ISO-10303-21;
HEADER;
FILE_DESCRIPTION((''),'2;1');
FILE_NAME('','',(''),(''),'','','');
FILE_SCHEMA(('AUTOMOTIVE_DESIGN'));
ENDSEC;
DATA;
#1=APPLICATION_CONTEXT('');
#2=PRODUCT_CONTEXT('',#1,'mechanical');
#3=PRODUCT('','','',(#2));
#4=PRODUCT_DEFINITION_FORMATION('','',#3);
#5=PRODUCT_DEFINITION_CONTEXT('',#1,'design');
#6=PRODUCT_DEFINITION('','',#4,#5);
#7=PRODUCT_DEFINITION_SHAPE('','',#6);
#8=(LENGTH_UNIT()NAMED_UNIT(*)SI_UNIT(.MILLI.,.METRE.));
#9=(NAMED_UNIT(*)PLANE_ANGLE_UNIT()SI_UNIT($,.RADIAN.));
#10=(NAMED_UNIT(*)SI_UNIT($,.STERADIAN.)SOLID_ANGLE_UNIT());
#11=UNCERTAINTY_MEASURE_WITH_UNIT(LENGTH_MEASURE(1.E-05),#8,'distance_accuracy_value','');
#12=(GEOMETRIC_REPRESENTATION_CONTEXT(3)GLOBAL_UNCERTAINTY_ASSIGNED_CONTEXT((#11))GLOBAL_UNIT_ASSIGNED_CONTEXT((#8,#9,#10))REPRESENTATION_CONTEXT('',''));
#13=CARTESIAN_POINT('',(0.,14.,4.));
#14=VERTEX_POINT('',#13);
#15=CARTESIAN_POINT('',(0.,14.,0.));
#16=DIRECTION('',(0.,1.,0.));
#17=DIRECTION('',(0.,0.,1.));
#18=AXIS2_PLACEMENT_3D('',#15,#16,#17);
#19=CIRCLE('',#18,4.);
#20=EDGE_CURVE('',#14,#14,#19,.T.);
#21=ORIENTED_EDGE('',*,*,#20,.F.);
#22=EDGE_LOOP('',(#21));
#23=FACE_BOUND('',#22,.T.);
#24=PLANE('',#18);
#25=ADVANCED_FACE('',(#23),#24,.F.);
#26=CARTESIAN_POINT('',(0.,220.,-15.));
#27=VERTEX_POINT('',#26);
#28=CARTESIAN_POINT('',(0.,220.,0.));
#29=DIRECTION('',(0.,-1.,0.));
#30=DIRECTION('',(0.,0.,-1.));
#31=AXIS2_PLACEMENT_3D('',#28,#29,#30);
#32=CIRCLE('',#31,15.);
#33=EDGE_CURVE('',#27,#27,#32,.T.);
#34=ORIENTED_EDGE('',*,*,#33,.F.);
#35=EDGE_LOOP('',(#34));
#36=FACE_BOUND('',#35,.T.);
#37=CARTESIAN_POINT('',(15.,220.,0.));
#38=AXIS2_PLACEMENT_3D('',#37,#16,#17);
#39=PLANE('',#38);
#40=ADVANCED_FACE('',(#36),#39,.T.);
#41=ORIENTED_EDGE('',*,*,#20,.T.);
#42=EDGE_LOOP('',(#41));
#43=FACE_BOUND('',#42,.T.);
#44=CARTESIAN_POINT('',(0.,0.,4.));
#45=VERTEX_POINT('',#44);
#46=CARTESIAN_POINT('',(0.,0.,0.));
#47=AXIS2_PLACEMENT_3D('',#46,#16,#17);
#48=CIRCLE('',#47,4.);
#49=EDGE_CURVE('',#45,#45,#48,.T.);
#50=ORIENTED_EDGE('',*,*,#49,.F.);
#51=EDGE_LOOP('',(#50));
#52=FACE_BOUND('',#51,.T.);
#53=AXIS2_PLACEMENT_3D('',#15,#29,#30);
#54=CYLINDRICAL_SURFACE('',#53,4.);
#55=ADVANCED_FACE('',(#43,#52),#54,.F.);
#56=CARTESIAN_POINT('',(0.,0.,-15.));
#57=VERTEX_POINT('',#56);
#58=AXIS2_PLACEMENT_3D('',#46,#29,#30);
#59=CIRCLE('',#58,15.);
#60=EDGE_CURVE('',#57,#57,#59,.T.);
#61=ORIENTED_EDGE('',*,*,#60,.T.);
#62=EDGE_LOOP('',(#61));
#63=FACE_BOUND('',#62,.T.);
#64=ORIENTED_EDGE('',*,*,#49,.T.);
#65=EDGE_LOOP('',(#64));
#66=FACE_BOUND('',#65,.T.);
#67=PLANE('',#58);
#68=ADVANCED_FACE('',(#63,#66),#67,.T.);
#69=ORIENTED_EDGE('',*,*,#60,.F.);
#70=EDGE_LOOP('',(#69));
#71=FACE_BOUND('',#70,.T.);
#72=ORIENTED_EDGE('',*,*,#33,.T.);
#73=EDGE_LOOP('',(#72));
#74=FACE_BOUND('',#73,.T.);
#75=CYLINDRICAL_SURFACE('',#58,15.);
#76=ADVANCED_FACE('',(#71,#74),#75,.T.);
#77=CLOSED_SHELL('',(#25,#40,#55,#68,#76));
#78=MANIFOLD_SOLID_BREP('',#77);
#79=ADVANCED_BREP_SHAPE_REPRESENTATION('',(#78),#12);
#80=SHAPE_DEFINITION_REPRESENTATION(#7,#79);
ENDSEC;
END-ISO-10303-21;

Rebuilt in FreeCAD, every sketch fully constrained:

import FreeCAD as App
import Part
import Sketcher

V = App.Vector
Q = App.Units.Quantity

doc = App.newDocument("Part")
body = doc.addObject("PartDesign::Body", "Body")

sketch1 = body.newObject("Sketcher::SketchObject", "Sketch")
sketch1.AttachmentSupport = (doc.getObject("XY_Plane"), [""])
sketch1.MapMode = "FlatFace"
sketch1.addGeometry(Part.LineSegment(V(0, 220, 0), V(0, 0, 0)), False)
sketch1.addGeometry(Part.LineSegment(V(0, 0, 0), V(15, 0, 0)), False)
sketch1.addGeometry(Part.LineSegment(V(15, 0, 0), V(15, 220, 0)), False)
sketch1.addGeometry(Part.LineSegment(V(15, 220, 0), V(0, 220, 0)), False)
sketch1.addConstraint(Sketcher.Constraint("Coincident", 0, 2, 1, 1))
sketch1.addConstraint(Sketcher.Constraint("Coincident", 1, 2, 2, 1))
sketch1.addConstraint(Sketcher.Constraint("Coincident", 2, 2, 3, 1))
sketch1.addConstraint(Sketcher.Constraint("Coincident", 3, 2, 0, 1))
sketch1.addConstraint(Sketcher.Constraint("Vertical", 0))
sketch1.addConstraint(Sketcher.Constraint("Horizontal", 1))
sketch1.addConstraint(Sketcher.Constraint("Vertical", 2))
sketch1.addConstraint(Sketcher.Constraint("Horizontal", 3))
sketch1.addConstraint(Sketcher.Constraint("Coincident", 0, 2, -1, 1))
sketch1.addConstraint(Sketcher.Constraint("DistanceX", 1, 1, 1, 2, Q("15 mm")))
sketch1.addConstraint(Sketcher.Constraint("DistanceY", 0, 2, 0, 1, Q("220 mm")))
revolution = body.newObject("PartDesign::Revolution", "Revolution")
revolution.Profile = sketch1
revolution.ReferenceAxis = (sketch1, ["V_Axis"])
revolution.Angle = 360

sketch2 = body.newObject("Sketcher::SketchObject", "Sketch001")
sketch2.AttachmentSupport = (doc.getObject("XZ_Plane"), [""])
sketch2.MapMode = "FlatFace"
sketch2.addGeometry(Part.Circle(V(0, 0, 0), V(0, 0, 1), 4), False)
sketch2.addConstraint(Sketcher.Constraint("Coincident", 0, 3, -1, 1))
sketch2.addConstraint(Sketcher.Constraint("Diameter", 0, Q("8 mm")))
pocket1 = body.newObject("PartDesign::Pocket", "Pocket")
pocket1.Profile = sketch2
pocket1.Length = 14

doc.recompute()
